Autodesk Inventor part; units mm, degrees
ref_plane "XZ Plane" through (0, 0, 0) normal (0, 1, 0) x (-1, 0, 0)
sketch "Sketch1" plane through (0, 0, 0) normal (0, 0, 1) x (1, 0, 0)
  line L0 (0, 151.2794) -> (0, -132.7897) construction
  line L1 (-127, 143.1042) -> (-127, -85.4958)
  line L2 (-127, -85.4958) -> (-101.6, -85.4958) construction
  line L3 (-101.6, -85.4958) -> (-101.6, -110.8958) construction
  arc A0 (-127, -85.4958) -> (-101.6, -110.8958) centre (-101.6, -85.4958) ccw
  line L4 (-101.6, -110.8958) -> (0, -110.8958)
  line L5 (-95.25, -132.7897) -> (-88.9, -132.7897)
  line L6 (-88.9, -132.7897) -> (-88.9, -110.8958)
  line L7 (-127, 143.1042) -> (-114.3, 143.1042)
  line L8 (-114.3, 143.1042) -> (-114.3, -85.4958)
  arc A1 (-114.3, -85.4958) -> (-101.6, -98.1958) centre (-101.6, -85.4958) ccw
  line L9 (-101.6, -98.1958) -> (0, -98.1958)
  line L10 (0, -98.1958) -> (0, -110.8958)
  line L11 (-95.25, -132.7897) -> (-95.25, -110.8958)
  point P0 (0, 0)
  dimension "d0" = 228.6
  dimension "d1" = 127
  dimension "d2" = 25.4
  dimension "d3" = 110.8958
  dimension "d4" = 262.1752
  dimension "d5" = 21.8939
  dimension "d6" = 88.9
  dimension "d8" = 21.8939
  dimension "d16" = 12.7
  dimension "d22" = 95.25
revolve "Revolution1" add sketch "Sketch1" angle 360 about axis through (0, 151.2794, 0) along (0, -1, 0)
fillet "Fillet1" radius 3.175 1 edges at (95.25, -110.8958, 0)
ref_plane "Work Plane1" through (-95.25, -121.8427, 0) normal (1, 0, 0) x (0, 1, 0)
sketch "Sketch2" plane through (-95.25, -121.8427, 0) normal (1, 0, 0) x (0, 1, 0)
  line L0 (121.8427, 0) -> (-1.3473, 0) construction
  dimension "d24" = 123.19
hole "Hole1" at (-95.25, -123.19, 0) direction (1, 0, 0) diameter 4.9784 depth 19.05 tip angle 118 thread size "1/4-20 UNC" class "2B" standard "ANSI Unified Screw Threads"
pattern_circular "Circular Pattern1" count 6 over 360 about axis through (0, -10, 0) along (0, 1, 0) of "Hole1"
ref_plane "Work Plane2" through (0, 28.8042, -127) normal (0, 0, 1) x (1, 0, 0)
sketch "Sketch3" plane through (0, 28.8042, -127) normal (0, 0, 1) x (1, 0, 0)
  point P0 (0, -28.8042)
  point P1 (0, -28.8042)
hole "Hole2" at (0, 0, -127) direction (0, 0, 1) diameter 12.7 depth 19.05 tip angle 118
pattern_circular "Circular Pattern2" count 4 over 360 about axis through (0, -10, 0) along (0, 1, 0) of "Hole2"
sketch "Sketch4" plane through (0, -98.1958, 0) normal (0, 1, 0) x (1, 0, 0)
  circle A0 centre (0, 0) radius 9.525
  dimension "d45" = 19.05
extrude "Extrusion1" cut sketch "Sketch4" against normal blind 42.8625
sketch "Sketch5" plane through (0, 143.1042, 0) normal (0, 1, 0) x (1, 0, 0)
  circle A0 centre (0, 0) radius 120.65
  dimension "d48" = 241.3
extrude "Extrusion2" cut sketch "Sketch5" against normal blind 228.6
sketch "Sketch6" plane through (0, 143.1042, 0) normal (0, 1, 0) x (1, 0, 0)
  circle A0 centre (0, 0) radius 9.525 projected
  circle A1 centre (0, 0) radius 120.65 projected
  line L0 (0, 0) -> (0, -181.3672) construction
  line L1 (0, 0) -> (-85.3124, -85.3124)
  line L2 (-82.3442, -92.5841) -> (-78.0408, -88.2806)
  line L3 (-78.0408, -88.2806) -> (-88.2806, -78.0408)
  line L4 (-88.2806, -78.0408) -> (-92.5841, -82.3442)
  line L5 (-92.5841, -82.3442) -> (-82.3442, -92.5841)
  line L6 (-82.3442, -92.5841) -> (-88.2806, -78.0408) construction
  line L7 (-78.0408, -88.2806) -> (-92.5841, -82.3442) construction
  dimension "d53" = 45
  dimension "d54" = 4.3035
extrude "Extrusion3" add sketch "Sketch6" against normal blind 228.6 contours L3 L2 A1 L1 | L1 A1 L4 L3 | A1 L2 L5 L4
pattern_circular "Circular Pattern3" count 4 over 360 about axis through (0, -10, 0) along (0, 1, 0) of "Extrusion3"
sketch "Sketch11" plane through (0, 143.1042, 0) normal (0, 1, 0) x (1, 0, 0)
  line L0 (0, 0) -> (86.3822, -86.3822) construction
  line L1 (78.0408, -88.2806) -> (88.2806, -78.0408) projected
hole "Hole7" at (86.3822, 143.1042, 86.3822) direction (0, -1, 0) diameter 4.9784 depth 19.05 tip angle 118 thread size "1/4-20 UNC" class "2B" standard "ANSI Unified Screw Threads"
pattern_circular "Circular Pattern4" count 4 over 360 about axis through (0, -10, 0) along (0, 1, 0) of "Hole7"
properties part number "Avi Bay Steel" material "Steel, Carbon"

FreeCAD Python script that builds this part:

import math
import FreeCAD as App
import Part
import Sketcher
Q = App.Units.Quantity


def edges_at(feature, points):
    """Names of the edges that pass closest to the given points."""
    edges = feature.Shape.Edges
    near = lambda p: min(range(len(edges)), key=lambda i: edges[i].distToShape(Part.Vertex(*p))[0])
    return sorted({f"Edge{near(p) + 1}" for p in points})


def add_polygon(sketch, points):
    """Adds a closed chain of lines whose ends are joined by coincident constraints."""
    first, n = sketch.GeometryCount, len(points)
    for a, b in zip(points, points[1:] + points[:1]):
        sketch.addGeometry(Part.LineSegment(App.Vector(*a, 0), App.Vector(*b, 0)), False)
    for i in range(n):
        sketch.addConstraint(Sketcher.Constraint("Coincident", first + i, 2, first + (i + 1) % n, 1))

doc = App.newDocument("Part")
body = doc.addObject("PartDesign::Body", "Body")

sketch1 = body.newObject("Sketcher::SketchObject", "Sketch")
sketch1.AttachmentSupport = (doc.getObject("XY_Plane"), [""])
sketch1.MapMode = "FlatFace"
sketch1.addGeometry([
    Part.LineSegment(App.Vector(-114, 143, 0), App.Vector(-127, 143, 0)),
    Part.LineSegment(App.Vector(-127, 143, 0), App.Vector(-127, -85, 0)),
    Part.ArcOfCircle(Part.Circle(App.Vector(-102, -85, 0), App.Vector(0, 0, 1), 25), math.radians(180), math.radians(270)),
    Part.LineSegment(App.Vector(-102, -111, 0), App.Vector(-95, -111, 0)),
    Part.LineSegment(App.Vector(-95, -111, 0), App.Vector(-95, -133, 0)),
    Part.LineSegment(App.Vector(-95, -133, 0), App.Vector(-89, -133, 0)),
    Part.LineSegment(App.Vector(-89, -133, 0), App.Vector(-89, -111, 0)),
    Part.LineSegment(App.Vector(-89, -111, 0), App.Vector(0, -111, 0)),
    Part.LineSegment(App.Vector(0, -111, 0), App.Vector(0, -98, 0)),
    Part.LineSegment(App.Vector(0, -98, 0), App.Vector(-102, -98, 0)),
    Part.ArcOfCircle(Part.Circle(App.Vector(-102, -85, 0), App.Vector(0, 0, 1), 13), math.radians(180), math.radians(270)),
    Part.LineSegment(App.Vector(-114, -85, 0), App.Vector(-114, 143, 0)),
], False)
sketch1.addConstraint([
    Sketcher.Constraint("Coincident", 0, 2, 1, 1),
    Sketcher.Constraint("Tangent", 1, 2, 2, 1),
    Sketcher.Constraint("Tangent", 2, 2, 3, 1),
    Sketcher.Constraint("Coincident", 3, 2, 4, 1),
    Sketcher.Constraint("Coincident", 4, 2, 5, 1),
    Sketcher.Constraint("Coincident", 5, 2, 6, 1),
    Sketcher.Constraint("Coincident", 6, 2, 7, 1),
    Sketcher.Constraint("Coincident", 7, 2, 8, 1),
    Sketcher.Constraint("Coincident", 8, 2, 9, 1),
    Sketcher.Constraint("Tangent", 9, 2, 10, 2),
    Sketcher.Constraint("Tangent", 10, 1, 11, 1),
    Sketcher.Constraint("Coincident", 11, 2, 0, 1),
    Sketcher.Constraint("Horizontal", 0),
    Sketcher.Constraint("Vertical", 1),
    Sketcher.Constraint("Horizontal", 3),
    Sketcher.Constraint("Vertical", 4),
    Sketcher.Constraint("Horizontal", 5),
    Sketcher.Constraint("Vertical", 6),
    Sketcher.Constraint("Horizontal", 7),
    Sketcher.Constraint("Vertical", 8),
    Sketcher.Constraint("Horizontal", 9),
    Sketcher.Constraint("Vertical", 11),
    Sketcher.Constraint("Coincident", 10, 3, 2, 3),
    Sketcher.Constraint("PointOnObject", 7, 2, -2),
    Sketcher.Constraint("Horizontal", 3, 2, 6, 2),
    Sketcher.Constraint("Equal", 3, 5),
    Sketcher.Constraint("Radius", 2, Q("1 in")),
    Sketcher.Constraint("Radius", 10, Q("0.5 in")),
    Sketcher.Constraint("DistanceY", 1, 2, 1, 1, Q("9 in")),
    Sketcher.Constraint("DistanceX", 7, 1, 7, 2, Q("3.5 in")),
    Sketcher.Constraint("DistanceX", 0, 2, -1, 1, Q("5 in")),
    Sketcher.Constraint("DistanceY", 4, 2, 4, 1, 21.894),
    Sketcher.Constraint("DistanceY", 2, 2, -1, 1, 110.8958),
])
revolution = body.newObject("PartDesign::Revolution", "Revolution")
revolution.Profile = sketch1
revolution.ReferenceAxis = (sketch1, ["V_Axis"])
revolution.Angle = 360
doc.recompute()

fillet = body.newObject("PartDesign::Fillet", "Fillet")
fillet.Base = (revolution, edges_at(revolution, [(95.25, -110.896, 0)]))
fillet.Radius = Q("0.125 in")

sketch2 = body.newObject("Sketcher::SketchObject", "Sketch001")
sketch2.AttachmentSupport = (doc.getObject("YZ_Plane"), [""])
sketch2.MapMode = "FlatFace"
sketch2.AttachmentOffset = App.Placement(App.Vector(0, 0, -3.75 * 25.4), App.Rotation())
sketch2.addGeometry(Part.Circle(App.Vector(-123.2, 0, 0), App.Vector(0, 0, 1), 2.5), False)
sketch2.addConstraint([
    Sketcher.Constraint("PointOnObject", 0, 3, -1),
    Sketcher.Constraint("Diameter", 0, Q("0.196 in")),
    Sketcher.Constraint("DistanceX", 0, 3, -1, 1, Q("4.85 in")),
])
doc.recompute()
hole = body.newObject("PartDesign::Hole", "Hole")
hole.Profile = sketch2
hole.ThreadType = "None"
hole.Diameter = Q("0.196 in")
hole.DepthType = "Dimension"
hole.Depth = Q("0.75 in")
hole.DrillPoint = "Angled"
hole.DrillPointAngle = 118
hole.Reversed = True
doc.recompute()

polarpattern = body.newObject("PartDesign::PolarPattern", "PolarPattern")
polarpattern.Originals = [hole]
polarpattern.Axis = (doc.getObject("Y_Axis"), [""])
polarpattern.Angle = 360
polarpattern.Occurrences = 6
body.Tip = polarpattern

sketch3 = body.newObject("Sketcher::SketchObject", "Sketch002")
sketch3.AttachmentSupport = (doc.getObject("XY_Plane"), [""])
sketch3.MapMode = "FlatFace"
sketch3.AttachmentOffset = App.Placement(App.Vector(0, 0, -5 * 25.4), App.Rotation())
sketch3.addGeometry(Part.Circle(App.Vector(0, 0, 0), App.Vector(0, 0, 1), 6), False)
sketch3.addConstraint([
    Sketcher.Constraint("Coincident", 0, 3, -1, 1),
    Sketcher.Constraint("Diameter", 0, Q("0.5 in")),
])
doc.recompute()
hole2 = body.newObject("PartDesign::Hole", "Hole001")
hole2.Profile = sketch3
hole2.ThreadType = "None"
hole2.Diameter = Q("0.5 in")
hole2.DepthType = "Dimension"
hole2.Depth = Q("0.75 in")
hole2.DrillPoint = "Angled"
hole2.DrillPointAngle = 118
hole2.Reversed = True
doc.recompute()

polarpattern2 = body.newObject("PartDesign::PolarPattern", "PolarPattern001")
polarpattern2.Originals = [hole2]
polarpattern2.Axis = (doc.getObject("Y_Axis"), [""])
polarpattern2.Angle = 360
polarpattern2.Occurrences = 4
body.Tip = polarpattern2

sketch4 = body.newObject("Sketcher::SketchObject", "Sketch003")
sketch4.AttachmentSupport = (doc.getObject("XZ_Plane"), [""])
sketch4.MapMode = "FlatFace"
sketch4.AttachmentOffset = App.Placement(App.Vector(0, 0, 98.1958), App.Rotation())
sketch4.addGeometry(Part.Circle(App.Vector(0, 0, 0), App.Vector(0, 0, 1), 10), False)
sketch4.addConstraint([
    Sketcher.Constraint("Coincident", 0, 3, -1, 1),
    Sketcher.Constraint("Diameter", 0, Q("0.75 in")),
])
pocket1 = body.newObject("PartDesign::Pocket", "Pocket")
pocket1.Profile = sketch4
pocket1.Length = Q("1.6875 in")
pocket1.Reversed = True

sketch5 = body.newObject("Sketcher::SketchObject", "Sketch004")
sketch5.AttachmentSupport = (doc.getObject("XZ_Plane"), [""])
sketch5.MapMode = "FlatFace"
sketch5.AttachmentOffset = App.Placement(App.Vector(0, 0, -143.1042), App.Rotation())
sketch5.addGeometry(Part.Circle(App.Vector(0, 0, 0), App.Vector(0, 0, 1), 121), False)
sketch5.addConstraint([
    Sketcher.Constraint("Coincident", 0, 3, -1, 1),
    Sketcher.Constraint("Diameter", 0, Q("9.5 in")),
])
pocket2 = body.newObject("PartDesign::Pocket", "Pocket001")
pocket2.Profile = sketch5
pocket2.Length = Q("9 in")
pocket2.Reversed = True

sketch6 = body.newObject("Sketcher::SketchObject", "Sketch005")
sketch6.AttachmentSupport = (doc.getObject("XZ_Plane"), [""])
sketch6.MapMode = "FlatFace"
sketch6.AttachmentOffset = App.Placement(App.Vector(0, 0, -143.1042), App.Rotation())
add_polygon(sketch6, [(-78, 88), (-88, 78), (-93, 82), (-82, 93)])
sketch6.addConstraint([
    Sketcher.Constraint("Perpendicular", 0, 1),
    Sketcher.Constraint("Perpendicular", 1, 2),
    Sketcher.Constraint("Perpendicular", 2, 3),
    Sketcher.Constraint("Angle", 2, Q("45 deg")),
    Sketcher.Constraint("DistanceX", 1, 2, 0, 2, 4.3035),
    Sketcher.Constraint("DistanceY", -1, 1, 1, 2, Q("3.2419 in")),
    Sketcher.Constraint("DistanceX", 2, 2, -1, 1, Q("3.2419 in")),
    Sketcher.Constraint("Distance", 0, 14.4813),
])
pad1 = body.newObject("PartDesign::Pad", "Pad")
pad1.Profile = sketch6
pad1.Length = Q("9 in")
doc.recompute()

polarpattern3 = body.newObject("PartDesign::PolarPattern", "PolarPattern002")
polarpattern3.Originals = [pad1]
polarpattern3.Axis = (doc.getObject("Y_Axis"), [""])
polarpattern3.Angle = 360
polarpattern3.Occurrences = 4
body.Tip = polarpattern3

sketch7 = body.newObject("Sketcher::SketchObject", "Sketch006")
sketch7.AttachmentSupport = (doc.getObject("XZ_Plane"), [""])
sketch7.MapMode = "FlatFace"
sketch7.AttachmentOffset = App.Placement(App.Vector(0, 0, -143.1042), App.Rotation())
sketch7.addGeometry(Part.Circle(App.Vector(86.4, 86.4, 0), App.Vector(0, 0, 1), 2.5), False)
sketch7.addConstraint([
    Sketcher.Constraint("Diameter", 0, Q("0.196 in")),
    Sketcher.Constraint("DistanceX", -1, 1, 0, 3, 86.3822),
    Sketcher.Constraint("DistanceY", -1, 1, 0, 3, 86.3822),
])
doc.recompute()
hole3 = body.newObject("PartDesign::Hole", "Hole002")
hole3.Profile = sketch7
hole3.ThreadType = "None"
hole3.Diameter = Q("0.196 in")
hole3.DepthType = "Dimension"
hole3.Depth = Q("0.75 in")
hole3.DrillPoint = "Angled"
hole3.DrillPointAngle = 118
hole3.Reversed = True
doc.recompute()

polarpattern4 = body.newObject("PartDesign::PolarPattern", "PolarPattern003")
polarpattern4.Originals = [hole3]
polarpattern4.Axis = (doc.getObject("Y_Axis"), [""])
polarpattern4.Angle = 360
polarpattern4.Occurrences = 4
body.Tip = polarpattern4

doc.recompute()
